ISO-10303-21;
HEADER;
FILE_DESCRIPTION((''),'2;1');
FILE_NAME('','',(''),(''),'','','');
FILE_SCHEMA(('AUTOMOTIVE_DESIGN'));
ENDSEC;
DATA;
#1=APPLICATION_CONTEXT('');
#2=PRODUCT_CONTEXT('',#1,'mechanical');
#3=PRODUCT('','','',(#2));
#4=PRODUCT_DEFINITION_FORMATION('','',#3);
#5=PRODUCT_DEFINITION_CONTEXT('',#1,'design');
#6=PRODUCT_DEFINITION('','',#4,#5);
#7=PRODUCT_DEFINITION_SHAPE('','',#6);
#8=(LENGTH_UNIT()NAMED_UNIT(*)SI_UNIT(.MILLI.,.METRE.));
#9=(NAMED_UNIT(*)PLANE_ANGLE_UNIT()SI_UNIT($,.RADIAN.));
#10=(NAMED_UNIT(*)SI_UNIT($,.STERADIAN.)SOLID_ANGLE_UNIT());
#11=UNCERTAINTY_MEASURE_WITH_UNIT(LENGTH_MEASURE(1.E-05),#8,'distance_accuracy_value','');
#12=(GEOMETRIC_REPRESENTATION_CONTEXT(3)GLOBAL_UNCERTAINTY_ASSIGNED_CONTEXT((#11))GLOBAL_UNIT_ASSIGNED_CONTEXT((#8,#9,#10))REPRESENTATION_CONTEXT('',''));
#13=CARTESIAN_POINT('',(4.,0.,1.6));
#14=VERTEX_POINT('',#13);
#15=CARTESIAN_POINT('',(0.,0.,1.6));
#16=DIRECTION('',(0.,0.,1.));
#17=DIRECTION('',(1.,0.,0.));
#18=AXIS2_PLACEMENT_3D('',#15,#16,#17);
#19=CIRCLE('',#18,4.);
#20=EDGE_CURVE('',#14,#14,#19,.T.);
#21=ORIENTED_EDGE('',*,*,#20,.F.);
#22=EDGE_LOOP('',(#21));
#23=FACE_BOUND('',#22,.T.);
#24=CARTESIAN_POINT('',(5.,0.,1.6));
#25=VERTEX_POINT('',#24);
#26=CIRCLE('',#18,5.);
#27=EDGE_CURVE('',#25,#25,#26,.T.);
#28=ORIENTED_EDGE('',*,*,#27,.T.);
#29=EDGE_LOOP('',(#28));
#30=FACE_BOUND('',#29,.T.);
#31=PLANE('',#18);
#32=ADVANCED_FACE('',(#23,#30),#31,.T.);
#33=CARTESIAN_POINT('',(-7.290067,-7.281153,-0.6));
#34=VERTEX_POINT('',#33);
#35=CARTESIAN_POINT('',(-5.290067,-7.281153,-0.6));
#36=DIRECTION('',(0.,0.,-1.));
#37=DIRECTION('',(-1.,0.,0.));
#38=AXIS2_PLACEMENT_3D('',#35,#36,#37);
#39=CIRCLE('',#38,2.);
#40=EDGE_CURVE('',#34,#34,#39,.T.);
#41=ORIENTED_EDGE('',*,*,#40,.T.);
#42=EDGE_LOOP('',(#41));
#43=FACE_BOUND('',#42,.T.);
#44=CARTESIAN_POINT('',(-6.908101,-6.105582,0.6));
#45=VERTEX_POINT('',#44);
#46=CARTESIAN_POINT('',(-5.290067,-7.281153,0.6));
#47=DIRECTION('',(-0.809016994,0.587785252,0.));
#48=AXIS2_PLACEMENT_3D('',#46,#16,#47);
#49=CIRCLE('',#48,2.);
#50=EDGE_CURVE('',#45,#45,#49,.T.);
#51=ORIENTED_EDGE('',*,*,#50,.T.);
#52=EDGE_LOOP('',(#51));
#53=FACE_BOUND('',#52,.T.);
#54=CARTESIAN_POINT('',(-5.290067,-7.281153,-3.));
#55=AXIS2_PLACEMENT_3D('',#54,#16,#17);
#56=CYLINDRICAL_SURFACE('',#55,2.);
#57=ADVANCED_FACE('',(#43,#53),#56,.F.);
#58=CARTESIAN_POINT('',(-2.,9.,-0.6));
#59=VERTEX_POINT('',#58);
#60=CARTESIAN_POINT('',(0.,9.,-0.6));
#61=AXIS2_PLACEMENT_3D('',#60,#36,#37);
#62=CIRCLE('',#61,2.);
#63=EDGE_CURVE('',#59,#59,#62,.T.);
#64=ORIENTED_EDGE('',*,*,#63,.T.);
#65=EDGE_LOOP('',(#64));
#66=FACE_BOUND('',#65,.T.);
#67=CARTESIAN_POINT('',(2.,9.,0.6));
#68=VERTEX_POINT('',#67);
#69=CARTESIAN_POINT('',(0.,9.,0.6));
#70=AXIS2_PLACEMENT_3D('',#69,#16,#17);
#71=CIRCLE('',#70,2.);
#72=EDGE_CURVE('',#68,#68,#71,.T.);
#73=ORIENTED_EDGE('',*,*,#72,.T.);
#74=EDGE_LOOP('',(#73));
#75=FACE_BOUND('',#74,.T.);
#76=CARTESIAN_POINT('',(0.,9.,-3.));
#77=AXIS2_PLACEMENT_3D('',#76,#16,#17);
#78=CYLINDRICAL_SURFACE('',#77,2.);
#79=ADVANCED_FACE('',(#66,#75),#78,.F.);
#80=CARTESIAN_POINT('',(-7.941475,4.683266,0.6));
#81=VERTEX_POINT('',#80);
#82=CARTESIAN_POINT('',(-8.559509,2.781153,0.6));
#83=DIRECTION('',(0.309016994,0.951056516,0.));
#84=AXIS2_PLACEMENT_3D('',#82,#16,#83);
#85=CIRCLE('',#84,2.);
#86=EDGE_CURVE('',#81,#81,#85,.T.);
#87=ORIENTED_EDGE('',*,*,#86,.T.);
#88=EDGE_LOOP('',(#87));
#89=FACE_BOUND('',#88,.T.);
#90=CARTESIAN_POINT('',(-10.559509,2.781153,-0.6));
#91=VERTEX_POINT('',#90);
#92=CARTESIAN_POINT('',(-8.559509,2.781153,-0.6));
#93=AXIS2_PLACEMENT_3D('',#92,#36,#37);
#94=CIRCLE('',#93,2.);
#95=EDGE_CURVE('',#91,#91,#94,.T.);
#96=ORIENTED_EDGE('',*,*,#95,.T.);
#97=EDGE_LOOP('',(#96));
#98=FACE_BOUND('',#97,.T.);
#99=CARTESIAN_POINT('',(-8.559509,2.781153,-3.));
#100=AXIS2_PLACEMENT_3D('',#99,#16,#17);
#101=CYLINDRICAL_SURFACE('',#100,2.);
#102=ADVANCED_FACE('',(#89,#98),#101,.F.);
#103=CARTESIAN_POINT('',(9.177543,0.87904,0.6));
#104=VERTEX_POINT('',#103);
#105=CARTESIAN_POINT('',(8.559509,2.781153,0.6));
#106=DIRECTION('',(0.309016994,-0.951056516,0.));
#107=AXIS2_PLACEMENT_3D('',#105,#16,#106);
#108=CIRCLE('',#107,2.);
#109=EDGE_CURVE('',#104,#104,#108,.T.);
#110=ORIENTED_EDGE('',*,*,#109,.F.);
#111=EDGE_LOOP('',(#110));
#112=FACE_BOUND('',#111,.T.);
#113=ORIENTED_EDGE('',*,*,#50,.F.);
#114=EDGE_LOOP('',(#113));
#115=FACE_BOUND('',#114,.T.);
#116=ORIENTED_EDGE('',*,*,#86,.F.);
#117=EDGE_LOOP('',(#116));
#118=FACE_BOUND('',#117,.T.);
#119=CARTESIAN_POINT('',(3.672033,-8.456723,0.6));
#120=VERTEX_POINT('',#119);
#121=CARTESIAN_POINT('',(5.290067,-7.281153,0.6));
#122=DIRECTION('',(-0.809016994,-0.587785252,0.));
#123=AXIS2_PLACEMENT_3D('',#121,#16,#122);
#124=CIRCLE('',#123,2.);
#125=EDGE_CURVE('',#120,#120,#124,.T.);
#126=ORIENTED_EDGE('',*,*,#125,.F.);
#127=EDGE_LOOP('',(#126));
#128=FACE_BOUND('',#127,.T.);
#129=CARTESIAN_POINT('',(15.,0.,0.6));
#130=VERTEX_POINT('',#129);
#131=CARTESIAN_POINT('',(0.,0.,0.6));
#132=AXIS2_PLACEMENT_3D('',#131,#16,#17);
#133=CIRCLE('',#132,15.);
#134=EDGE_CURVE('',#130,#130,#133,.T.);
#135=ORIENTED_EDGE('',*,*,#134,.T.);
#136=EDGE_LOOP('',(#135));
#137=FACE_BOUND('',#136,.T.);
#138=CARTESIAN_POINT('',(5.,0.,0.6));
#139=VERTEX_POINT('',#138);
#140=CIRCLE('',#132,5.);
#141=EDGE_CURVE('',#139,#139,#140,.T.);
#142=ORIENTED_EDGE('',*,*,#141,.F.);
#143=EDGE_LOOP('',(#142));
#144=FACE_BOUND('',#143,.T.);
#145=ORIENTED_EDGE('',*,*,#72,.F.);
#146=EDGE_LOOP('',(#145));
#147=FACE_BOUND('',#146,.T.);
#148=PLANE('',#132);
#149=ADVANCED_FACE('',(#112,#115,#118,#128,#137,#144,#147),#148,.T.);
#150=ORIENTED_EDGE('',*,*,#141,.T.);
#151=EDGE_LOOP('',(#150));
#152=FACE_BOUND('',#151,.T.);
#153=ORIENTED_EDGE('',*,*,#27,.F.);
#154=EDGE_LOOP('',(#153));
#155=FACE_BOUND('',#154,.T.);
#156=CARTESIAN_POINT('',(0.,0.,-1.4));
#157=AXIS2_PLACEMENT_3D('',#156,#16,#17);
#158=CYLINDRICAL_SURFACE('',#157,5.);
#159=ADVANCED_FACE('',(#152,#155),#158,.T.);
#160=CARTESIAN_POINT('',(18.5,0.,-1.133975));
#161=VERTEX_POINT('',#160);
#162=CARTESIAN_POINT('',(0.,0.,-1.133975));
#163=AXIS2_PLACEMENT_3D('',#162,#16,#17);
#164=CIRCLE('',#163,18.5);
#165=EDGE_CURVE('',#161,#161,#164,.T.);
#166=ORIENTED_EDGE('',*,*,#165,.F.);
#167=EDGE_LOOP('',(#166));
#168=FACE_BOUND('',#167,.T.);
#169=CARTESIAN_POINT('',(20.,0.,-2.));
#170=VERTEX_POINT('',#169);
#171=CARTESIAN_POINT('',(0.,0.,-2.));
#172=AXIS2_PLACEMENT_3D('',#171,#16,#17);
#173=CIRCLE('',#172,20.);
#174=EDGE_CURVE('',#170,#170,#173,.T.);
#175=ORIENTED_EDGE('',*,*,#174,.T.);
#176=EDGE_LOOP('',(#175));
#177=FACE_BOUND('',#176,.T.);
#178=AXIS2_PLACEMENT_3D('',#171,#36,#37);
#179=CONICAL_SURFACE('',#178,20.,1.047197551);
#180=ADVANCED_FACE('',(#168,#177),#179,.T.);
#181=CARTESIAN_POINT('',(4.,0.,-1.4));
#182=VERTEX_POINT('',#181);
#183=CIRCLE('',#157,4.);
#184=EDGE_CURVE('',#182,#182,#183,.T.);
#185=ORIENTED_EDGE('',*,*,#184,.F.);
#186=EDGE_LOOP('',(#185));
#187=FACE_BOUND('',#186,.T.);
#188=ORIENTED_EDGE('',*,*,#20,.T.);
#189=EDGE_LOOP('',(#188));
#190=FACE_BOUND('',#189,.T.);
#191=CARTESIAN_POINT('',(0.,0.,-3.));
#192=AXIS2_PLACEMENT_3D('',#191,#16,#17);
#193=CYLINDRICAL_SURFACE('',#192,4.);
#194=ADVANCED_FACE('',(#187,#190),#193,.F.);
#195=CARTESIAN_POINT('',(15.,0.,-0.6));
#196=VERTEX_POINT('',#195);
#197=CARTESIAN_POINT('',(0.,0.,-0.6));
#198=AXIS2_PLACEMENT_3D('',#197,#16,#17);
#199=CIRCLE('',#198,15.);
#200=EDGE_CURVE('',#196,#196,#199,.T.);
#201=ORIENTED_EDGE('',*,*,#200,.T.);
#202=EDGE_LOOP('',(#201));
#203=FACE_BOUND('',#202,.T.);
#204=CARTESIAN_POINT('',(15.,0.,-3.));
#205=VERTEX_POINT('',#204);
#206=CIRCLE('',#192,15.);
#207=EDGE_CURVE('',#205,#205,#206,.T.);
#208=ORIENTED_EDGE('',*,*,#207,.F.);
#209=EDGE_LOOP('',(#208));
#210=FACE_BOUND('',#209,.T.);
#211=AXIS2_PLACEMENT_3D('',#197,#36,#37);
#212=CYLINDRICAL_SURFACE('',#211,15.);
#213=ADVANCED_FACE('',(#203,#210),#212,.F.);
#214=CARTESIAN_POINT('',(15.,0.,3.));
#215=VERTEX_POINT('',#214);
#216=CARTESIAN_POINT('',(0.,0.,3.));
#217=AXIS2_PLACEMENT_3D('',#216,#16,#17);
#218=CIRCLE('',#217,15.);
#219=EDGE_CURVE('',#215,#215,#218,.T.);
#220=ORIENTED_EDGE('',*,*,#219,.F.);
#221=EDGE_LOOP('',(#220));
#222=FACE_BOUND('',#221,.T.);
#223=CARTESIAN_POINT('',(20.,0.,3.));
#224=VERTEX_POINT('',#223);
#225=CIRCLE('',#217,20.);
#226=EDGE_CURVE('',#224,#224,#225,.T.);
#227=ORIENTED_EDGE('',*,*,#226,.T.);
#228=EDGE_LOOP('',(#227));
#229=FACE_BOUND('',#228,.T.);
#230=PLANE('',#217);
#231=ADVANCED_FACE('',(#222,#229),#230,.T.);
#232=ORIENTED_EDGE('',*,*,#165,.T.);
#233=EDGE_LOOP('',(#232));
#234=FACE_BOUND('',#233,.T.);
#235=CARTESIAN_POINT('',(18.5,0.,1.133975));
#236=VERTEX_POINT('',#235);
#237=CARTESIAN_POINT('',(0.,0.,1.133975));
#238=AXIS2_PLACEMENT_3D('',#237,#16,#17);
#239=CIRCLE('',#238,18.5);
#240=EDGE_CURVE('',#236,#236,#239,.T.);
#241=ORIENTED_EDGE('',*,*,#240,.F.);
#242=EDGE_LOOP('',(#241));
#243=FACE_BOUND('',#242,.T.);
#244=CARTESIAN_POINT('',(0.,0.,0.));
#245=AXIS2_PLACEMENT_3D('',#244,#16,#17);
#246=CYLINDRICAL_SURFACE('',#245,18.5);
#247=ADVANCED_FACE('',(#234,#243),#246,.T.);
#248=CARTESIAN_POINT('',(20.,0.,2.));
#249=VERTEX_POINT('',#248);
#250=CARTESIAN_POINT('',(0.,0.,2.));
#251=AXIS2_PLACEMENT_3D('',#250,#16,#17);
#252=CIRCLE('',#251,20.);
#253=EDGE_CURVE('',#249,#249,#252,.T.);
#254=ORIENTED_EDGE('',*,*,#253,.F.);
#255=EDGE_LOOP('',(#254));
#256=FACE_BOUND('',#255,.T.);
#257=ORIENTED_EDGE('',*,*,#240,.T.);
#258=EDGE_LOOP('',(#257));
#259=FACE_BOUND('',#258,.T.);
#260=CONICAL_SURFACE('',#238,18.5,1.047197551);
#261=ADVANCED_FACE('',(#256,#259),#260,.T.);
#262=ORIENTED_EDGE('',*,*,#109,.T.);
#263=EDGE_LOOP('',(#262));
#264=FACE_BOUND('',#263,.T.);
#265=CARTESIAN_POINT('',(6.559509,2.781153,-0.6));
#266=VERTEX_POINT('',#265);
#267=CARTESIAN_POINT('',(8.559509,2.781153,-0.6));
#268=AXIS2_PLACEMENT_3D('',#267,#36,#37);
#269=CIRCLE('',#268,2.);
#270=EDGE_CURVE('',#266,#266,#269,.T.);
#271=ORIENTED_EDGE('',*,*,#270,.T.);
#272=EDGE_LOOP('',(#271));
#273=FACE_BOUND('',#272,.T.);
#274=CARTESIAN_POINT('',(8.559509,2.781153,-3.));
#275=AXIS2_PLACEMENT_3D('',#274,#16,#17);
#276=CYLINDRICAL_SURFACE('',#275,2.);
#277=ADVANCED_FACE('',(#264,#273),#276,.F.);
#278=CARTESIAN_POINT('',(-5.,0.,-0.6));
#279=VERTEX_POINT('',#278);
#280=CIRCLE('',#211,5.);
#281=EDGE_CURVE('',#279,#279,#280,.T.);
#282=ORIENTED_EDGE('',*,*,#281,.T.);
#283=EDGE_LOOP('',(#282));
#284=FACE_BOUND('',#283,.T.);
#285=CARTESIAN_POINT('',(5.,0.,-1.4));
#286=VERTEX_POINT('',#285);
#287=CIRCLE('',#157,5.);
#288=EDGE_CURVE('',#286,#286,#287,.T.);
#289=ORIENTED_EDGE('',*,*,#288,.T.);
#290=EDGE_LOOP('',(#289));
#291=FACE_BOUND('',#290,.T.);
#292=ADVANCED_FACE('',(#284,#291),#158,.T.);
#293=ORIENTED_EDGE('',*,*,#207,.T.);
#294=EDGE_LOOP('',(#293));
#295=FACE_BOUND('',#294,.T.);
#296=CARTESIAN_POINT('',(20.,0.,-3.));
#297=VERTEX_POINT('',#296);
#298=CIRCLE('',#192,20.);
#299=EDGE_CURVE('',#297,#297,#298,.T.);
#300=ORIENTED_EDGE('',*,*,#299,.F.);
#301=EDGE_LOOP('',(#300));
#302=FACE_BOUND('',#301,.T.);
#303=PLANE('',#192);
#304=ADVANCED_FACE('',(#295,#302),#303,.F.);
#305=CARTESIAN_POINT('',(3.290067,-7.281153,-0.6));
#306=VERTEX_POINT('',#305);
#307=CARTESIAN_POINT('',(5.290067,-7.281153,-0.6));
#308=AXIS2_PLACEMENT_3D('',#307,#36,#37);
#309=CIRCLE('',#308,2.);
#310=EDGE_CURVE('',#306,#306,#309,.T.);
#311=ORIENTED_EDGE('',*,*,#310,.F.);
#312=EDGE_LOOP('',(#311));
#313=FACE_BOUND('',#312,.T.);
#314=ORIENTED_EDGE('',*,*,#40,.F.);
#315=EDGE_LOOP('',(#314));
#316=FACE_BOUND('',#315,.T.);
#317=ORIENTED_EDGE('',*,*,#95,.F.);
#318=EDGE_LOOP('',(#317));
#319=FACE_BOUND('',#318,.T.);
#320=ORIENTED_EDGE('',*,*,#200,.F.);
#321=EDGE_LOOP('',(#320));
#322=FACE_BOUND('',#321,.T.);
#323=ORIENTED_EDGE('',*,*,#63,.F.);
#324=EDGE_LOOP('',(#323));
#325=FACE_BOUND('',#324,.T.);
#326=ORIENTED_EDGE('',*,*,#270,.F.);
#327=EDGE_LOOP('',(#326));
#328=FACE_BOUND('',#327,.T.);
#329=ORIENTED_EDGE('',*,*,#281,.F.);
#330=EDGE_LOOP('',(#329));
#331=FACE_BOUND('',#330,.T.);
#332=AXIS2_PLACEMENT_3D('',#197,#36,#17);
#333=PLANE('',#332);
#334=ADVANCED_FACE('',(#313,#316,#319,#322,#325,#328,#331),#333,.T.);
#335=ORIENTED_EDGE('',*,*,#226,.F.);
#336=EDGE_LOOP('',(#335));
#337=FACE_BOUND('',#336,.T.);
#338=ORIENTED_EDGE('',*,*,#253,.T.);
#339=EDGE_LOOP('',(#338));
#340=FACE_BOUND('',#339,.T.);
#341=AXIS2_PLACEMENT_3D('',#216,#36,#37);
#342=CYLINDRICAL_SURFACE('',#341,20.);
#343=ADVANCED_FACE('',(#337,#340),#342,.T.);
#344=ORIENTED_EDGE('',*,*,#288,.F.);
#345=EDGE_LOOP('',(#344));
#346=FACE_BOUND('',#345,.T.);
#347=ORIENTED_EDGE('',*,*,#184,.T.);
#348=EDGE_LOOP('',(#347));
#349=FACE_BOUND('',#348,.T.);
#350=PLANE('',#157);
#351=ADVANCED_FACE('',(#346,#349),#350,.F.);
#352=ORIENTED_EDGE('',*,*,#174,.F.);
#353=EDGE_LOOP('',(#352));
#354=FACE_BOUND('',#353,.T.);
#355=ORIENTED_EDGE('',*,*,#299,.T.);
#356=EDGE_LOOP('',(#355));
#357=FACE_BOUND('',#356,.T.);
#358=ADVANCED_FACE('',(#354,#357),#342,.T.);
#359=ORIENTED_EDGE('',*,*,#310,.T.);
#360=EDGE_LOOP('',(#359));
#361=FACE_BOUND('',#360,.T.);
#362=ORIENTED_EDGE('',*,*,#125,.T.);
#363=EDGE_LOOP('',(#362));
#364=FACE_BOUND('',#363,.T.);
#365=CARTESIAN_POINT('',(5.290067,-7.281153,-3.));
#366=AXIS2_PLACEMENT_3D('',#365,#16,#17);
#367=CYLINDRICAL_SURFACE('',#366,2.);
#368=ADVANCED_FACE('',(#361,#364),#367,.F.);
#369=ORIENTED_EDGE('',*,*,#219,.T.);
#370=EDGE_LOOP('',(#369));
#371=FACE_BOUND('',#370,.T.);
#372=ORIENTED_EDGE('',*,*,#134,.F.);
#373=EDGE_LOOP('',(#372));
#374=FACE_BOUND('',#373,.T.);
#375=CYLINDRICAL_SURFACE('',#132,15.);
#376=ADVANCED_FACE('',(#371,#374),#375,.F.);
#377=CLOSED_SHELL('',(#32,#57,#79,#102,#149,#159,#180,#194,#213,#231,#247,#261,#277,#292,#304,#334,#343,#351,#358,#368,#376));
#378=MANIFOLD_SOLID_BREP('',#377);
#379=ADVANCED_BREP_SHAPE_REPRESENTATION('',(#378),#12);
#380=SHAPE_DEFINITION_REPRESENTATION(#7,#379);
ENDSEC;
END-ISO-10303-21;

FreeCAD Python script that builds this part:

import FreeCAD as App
import Part
import Sketcher
from FreeCAD import Vector
Q = App.Units.Quantity

doc = App.newDocument("Part")
body = doc.addObject("PartDesign::Body", "Body")

sketch1 = body.newObject("Sketcher::SketchObject", "Sketch")
sketch1.AttachmentSupport = (doc.getObject("XY_Plane"), [""])
sketch1.MapMode = "FlatFace"
sketch1.addGeometry(Part.Circle(Vector(0, 0, 0), Vector(0, 0, 1), 20), False)
sketch1.addGeometry(Part.Circle(Vector(0, 0, 0), Vector(0, 0, 1), 4), False)
sketch1.addConstraint(Sketcher.Constraint("Coincident", 0, 3, -1, 1))
sketch1.addConstraint(Sketcher.Constraint("Coincident", 1, 3, -1, 1))
sketch1.addConstraint(Sketcher.Constraint("Diameter", 0, 40.0))
sketch1.addConstraint(Sketcher.Constraint("Diameter", 1, 8.0))
pad1 = body.newObject("PartDesign::Pad", "Pad")
pad1.Profile = sketch1
pad1.Length = 6
pad1.Midplane = True

sketch2 = body.newObject("Sketcher::SketchObject", "Sketch001")
sketch2.AttachmentSupport = (doc.getObject("XY_Plane"), [""])
sketch2.MapMode = "FlatFace"
sketch2.AttachmentOffset = App.Placement(Vector(0, 0, 3), App.Rotation())
sketch2.addGeometry(Part.Circle(Vector(0, 0, 0), Vector(0, 0, 1), 15), False)
sketch2.addConstraint(Sketcher.Constraint("Coincident", 0, 3, -1, 1))
sketch2.addConstraint(Sketcher.Constraint("Diameter", 0, 30.0))
pocket1 = body.newObject("PartDesign::Pocket", "Pocket")
pocket1.Profile = sketch2
pocket1.Length = 2.4
doc.recompute()

mirrored = body.newObject("PartDesign::Mirrored", "Mirrored")
mirrored.Originals = [pocket1]
mirrored.MirrorPlane = (doc.getObject("XY_Plane"), [""])
body.Tip = mirrored

sketch3 = body.newObject("Sketcher::SketchObject", "Sketch002")
sketch3.AttachmentSupport = (doc.getObject("XY_Plane"), [""])
sketch3.MapMode = "FlatFace"
sketch3.AttachmentOffset = App.Placement(Vector(0, 0, 0.6), App.Rotation())
sketch3.addGeometry(Part.Circle(Vector(0, 9, 0), Vector(0, 0, 1), 2), False)
sketch3.addConstraint(Sketcher.Constraint("PointOnObject", 0, 3, -2))
sketch3.addConstraint(Sketcher.Constraint("Diameter", 0, 4.0))
sketch3.addConstraint(Sketcher.Constraint("DistanceY", -1, 1, 0, 3, 9.0))
pocket2 = body.newObject("PartDesign::Pocket", "Pocket001")
pocket2.Profile = sketch3
pocket2.Type = "ThroughAll"
doc.recompute()

polarpattern = body.newObject("PartDesign::PolarPattern", "PolarPattern")
polarpattern.Originals = [pocket2]
polarpattern.Axis = (doc.getObject("Z_Axis"), [""])
polarpattern.Angle = 360
polarpattern.Occurrences = 5
body.Tip = polarpattern

sketch4 = body.newObject("Sketcher::SketchObject", "Sketch003")
sketch4.AttachmentSupport = (doc.getObject("XZ_Plane"), [""])
sketch4.MapMode = "FlatFace"
sketch4.addGeometry(Part.LineSegment(Vector(20, -2, 0), Vector(18.5, -1.1, 0)), False)
sketch4.addGeometry(Part.LineSegment(Vector(18.5, -1.1, 0), Vector(18.5, 1.1, 0)), False)
sketch4.addGeometry(Part.LineSegment(Vector(18.5, 1.1, 0), Vector(20, 2, 0)), False)
sketch4.addGeometry(Part.LineSegment(Vector(20, 2, 0), Vector(20, -2, 0)), False)
sketch4.addConstraint(Sketcher.Constraint("Coincident", 0, 2, 1, 1))
sketch4.addConstraint(Sketcher.Constraint("Coincident", 1, 2, 2, 1))
sketch4.addConstraint(Sketcher.Constraint("Coincident", 2, 2, 3, 1))
sketch4.addConstraint(Sketcher.Constraint("Coincident", 3, 2, 0, 1))
sketch4.addConstraint(Sketcher.Constraint("Vertical", 1))
sketch4.addConstraint(Sketcher.Constraint("Vertical", 3))
sketch4.addConstraint(Sketcher.Constraint("Equal", 0, 2))
sketch4.addConstraint(Sketcher.Constraint("DistanceY", 3, 2, 3, 1, 4.0))
sketch4.addConstraint(Sketcher.Constraint("Angle", 0, Q("150 deg")))
sketch4.addConstraint(Sketcher.Constraint("DistanceX", -1, 1, 2, 2, 20.0))
sketch4.addConstraint(Sketcher.Constraint("DistanceY", -1, 1, 2, 2, 2.0))
sketch4.addConstraint(Sketcher.Constraint("DistanceX", -1, 1, 0, 2, 18.5))
groove = body.newObject("PartDesign::Groove", "Groove")
groove.Profile = sketch4
groove.ReferenceAxis = (sketch4, ["V_Axis"])
groove.Angle = 360

sketch5 = body.newObject("Sketcher::SketchObject", "Sketch004")
sketch5.AttachmentSupport = (doc.getObject("XY_Plane"), [""])
sketch5.MapMode = "FlatFace"
sketch5.AttachmentOffset = App.Placement(Vector(0, 0, 0.6), App.Rotation())
sketch5.addGeometry(Part.Circle(Vector(0, 0, 0), Vector(0, 0, 1), 5), False)
sketch5.addConstraint(Sketcher.Constraint("Coincident", 0, 3, -1, 1))
sketch5.addConstraint(Sketcher.Constraint("Diameter", 0, 10.0))
pad2 = body.newObject("PartDesign::Pad", "Pad001")
pad2.Profile = sketch5
pad2.Type = "TwoLengths"
pad2.Length = 1
pad2.Length2 = 2

sketch6 = body.newObject("Sketcher::SketchObject", "Sketch005")
sketch6.AttachmentSupport = (doc.getObject("XY_Plane"), [""])
sketch6.MapMode = "FlatFace"
sketch6.AttachmentOffset = App.Placement(Vector(0, 0, 1.6), App.Rotation())
sketch6.addGeometry(Part.Circle(Vector(0, 0, 0), Vector(0, 0, 1), 4), False)
sketch6.addConstraint(Sketcher.Constraint("Coincident", 0, 3, -1, 1))
sketch6.addConstraint(Sketcher.Constraint("Diameter", 0, 8.0))
pocket3 = body.newObject("PartDesign::Pocket", "Pocket002")
pocket3.Profile = sketch6
pocket3.Type = "ThroughAll"

doc.recompute()
